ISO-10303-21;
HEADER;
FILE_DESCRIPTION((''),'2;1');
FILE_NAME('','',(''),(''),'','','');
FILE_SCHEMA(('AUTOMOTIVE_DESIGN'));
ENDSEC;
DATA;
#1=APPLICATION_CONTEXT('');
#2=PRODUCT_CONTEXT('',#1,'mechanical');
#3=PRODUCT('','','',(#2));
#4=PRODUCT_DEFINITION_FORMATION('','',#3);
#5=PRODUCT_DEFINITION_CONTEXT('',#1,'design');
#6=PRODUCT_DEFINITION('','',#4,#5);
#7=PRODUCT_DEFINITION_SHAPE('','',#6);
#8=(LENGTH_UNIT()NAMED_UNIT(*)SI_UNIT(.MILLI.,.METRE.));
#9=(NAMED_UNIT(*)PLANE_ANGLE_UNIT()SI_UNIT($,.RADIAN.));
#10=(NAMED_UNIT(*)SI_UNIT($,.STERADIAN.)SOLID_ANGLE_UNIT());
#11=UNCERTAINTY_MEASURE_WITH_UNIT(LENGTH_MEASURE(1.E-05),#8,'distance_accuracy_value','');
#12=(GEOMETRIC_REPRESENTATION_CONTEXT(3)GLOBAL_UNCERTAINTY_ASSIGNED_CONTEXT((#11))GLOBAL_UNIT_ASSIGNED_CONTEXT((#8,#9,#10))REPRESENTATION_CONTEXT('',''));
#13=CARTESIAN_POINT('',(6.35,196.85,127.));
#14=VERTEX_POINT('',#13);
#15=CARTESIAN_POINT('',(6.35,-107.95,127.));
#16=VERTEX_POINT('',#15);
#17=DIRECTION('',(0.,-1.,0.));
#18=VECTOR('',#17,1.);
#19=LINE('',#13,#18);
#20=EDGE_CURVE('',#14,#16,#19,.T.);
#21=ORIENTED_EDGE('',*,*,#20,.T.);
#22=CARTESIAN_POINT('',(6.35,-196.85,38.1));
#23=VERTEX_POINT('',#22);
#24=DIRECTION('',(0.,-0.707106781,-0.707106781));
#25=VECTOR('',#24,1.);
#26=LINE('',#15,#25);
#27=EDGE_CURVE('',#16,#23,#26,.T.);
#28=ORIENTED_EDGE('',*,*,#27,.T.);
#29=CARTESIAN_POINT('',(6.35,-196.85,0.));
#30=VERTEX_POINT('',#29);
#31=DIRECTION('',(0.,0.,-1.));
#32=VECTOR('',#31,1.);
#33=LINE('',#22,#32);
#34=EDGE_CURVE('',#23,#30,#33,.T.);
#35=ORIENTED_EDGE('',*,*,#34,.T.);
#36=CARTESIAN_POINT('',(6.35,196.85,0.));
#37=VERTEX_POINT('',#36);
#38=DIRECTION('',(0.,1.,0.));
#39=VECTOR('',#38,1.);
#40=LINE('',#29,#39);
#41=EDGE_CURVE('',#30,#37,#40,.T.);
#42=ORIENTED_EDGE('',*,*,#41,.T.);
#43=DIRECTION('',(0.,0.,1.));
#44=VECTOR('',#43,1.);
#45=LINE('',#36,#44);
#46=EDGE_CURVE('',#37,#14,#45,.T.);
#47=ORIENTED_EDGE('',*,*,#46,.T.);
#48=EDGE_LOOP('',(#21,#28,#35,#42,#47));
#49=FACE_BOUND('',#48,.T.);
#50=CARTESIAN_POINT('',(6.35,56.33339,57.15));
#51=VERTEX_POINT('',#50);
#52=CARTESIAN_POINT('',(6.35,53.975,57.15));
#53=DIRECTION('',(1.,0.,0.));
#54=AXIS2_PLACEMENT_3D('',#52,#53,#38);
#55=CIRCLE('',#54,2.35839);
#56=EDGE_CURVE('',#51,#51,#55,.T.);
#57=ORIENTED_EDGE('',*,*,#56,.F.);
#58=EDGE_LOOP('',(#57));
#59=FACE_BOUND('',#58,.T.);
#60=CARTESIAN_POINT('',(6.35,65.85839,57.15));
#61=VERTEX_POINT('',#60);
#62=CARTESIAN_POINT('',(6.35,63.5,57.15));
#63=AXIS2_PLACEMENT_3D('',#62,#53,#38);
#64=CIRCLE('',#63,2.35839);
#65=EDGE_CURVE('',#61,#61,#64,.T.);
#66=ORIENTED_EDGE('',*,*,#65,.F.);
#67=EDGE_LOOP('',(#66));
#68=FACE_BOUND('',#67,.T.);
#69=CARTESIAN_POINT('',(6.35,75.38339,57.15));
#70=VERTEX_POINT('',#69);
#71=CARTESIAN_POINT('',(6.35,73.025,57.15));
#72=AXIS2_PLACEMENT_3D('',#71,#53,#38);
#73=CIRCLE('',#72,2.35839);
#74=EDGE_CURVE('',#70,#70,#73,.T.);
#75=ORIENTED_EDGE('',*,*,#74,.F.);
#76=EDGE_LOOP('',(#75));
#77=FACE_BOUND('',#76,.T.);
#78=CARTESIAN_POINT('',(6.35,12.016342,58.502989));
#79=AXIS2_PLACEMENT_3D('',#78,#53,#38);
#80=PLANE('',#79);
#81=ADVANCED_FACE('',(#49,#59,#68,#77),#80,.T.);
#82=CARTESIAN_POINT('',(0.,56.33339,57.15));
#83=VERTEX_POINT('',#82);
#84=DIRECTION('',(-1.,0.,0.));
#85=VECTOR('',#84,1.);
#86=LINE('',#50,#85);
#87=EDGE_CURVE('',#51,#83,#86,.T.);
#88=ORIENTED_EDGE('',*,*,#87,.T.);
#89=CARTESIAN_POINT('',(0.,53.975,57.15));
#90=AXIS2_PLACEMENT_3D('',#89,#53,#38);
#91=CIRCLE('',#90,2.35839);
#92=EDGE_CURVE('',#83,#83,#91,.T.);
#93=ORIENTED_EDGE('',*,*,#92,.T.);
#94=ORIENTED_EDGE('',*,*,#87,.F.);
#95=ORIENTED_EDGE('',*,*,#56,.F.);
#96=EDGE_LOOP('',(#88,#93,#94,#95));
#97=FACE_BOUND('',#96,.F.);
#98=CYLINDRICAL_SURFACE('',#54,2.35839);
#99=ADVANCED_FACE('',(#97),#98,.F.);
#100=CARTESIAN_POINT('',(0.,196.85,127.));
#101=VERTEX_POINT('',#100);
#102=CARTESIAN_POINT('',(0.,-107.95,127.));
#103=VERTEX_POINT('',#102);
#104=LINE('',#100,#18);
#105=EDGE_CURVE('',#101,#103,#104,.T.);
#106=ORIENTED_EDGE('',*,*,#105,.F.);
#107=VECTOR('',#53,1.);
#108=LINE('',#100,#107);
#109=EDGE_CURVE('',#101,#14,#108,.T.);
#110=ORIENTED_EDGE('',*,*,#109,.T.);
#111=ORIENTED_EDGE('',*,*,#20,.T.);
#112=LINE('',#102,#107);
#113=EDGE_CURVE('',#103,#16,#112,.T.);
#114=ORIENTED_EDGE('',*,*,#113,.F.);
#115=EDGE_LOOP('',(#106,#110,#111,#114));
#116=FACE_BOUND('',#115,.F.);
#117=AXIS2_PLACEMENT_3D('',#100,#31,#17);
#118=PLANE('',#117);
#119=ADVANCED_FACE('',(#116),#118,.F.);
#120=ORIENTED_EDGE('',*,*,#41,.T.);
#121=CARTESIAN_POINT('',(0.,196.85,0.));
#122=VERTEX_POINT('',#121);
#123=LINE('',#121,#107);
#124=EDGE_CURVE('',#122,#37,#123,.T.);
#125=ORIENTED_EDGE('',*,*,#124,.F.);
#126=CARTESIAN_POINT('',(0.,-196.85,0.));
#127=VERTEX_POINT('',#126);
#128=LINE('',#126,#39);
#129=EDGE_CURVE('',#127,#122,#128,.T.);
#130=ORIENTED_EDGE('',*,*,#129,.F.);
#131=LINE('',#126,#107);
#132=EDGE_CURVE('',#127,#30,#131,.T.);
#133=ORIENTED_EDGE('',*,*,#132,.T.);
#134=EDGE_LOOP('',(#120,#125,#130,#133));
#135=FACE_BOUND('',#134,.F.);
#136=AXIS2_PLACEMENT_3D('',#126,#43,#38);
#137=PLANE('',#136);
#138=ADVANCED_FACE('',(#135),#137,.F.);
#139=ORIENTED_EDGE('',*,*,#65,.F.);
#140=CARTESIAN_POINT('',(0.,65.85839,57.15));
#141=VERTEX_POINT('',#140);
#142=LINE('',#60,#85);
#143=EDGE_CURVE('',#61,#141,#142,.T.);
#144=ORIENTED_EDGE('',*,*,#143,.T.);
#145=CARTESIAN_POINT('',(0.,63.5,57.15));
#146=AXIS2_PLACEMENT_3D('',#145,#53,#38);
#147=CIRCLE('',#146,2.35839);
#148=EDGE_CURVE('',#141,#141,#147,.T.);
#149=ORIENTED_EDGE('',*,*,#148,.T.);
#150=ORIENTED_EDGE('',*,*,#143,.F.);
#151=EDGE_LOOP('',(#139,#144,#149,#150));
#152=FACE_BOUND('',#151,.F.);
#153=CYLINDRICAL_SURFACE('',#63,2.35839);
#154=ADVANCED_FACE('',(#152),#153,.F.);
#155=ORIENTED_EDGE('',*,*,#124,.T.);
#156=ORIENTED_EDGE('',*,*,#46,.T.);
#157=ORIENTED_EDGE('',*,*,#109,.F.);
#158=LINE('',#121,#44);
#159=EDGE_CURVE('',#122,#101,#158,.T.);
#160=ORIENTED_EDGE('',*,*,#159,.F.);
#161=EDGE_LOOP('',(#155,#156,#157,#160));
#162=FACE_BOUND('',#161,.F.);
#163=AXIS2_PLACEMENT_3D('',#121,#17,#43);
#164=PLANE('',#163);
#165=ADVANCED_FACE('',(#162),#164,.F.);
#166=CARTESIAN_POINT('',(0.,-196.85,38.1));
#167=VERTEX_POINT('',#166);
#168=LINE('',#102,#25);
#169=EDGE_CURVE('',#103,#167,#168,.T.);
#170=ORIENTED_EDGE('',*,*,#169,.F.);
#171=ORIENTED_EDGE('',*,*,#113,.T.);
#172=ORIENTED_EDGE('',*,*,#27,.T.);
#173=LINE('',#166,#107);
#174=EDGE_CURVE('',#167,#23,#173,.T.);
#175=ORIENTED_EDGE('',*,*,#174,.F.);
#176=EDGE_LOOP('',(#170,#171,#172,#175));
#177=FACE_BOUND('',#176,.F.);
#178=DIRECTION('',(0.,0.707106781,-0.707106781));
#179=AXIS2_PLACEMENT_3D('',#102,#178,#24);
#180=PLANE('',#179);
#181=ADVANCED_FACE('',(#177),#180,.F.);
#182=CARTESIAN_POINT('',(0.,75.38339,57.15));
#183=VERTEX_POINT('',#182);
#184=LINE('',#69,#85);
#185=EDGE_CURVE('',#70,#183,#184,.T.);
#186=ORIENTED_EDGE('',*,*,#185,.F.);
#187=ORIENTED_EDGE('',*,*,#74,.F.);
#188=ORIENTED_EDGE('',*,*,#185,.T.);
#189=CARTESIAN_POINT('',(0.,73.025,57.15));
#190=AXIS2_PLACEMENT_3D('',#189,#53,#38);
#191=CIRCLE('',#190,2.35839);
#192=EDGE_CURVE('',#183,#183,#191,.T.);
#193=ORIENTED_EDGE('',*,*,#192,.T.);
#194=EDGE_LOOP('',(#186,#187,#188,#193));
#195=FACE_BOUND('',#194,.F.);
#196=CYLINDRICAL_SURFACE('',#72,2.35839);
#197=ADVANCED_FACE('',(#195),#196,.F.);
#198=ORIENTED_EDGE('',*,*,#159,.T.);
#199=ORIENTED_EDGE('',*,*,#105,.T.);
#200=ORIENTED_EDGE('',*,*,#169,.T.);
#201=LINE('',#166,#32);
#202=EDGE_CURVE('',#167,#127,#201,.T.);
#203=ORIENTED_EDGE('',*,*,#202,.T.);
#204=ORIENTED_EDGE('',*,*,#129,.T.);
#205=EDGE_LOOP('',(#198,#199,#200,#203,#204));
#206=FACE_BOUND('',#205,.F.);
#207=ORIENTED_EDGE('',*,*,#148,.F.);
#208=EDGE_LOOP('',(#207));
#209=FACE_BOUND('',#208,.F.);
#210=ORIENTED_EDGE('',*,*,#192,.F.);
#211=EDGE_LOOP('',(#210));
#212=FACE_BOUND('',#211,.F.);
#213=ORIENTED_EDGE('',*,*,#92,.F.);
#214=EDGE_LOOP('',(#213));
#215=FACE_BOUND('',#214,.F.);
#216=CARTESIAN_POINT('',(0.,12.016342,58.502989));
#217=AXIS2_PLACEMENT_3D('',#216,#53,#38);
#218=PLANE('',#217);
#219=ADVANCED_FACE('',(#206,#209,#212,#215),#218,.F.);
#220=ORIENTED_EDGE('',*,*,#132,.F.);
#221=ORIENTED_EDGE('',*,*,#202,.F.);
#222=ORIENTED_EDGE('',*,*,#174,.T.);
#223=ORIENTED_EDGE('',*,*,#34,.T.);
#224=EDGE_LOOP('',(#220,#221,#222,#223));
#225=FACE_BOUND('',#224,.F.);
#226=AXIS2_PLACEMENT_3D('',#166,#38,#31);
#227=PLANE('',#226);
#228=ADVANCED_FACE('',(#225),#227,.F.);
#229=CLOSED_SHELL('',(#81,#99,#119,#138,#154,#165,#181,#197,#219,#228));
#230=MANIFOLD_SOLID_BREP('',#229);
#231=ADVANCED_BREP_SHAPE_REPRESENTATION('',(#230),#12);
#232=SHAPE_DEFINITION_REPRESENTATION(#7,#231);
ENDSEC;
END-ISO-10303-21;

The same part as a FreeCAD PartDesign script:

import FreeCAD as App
import Part
import Sketcher

V = App.Vector
Q = App.Units.Quantity


def add_polygon(sketch, points):
    """Adds a closed chain of lines whose ends are joined by coincident constraints."""
    first, n = sketch.GeometryCount, len(points)
    for a, b in zip(points, points[1:] + points[:1]):
        sketch.addGeometry(Part.LineSegment(App.Vector(*a, 0), App.Vector(*b, 0)), False)
    for i in range(n):
        sketch.addConstraint(Sketcher.Constraint("Coincident", first + i, 2, first + (i + 1) % n, 1))

doc = App.newDocument("Part")
body = doc.addObject("PartDesign::Body", "Body")

sketch1 = body.newObject("Sketcher::SketchObject", "Sketch")
sketch1.AttachmentSupport = (doc.getObject("YZ_Plane"), [""])
sketch1.MapMode = "FlatFace"
add_polygon(sketch1, [(-197, 38), (-197, 0), (197, 0), (197, 127), (-108, 127)])
sketch1.addConstraint([
    Sketcher.Constraint("Vertical", 0),
    Sketcher.Constraint("Horizontal", 1),
    Sketcher.Constraint("Vertical", 2),
    Sketcher.Constraint("Horizontal", 3),
    Sketcher.Constraint("Symmetric", 0, 2, 1, 2, -1, 1),
    Sketcher.Constraint("DistanceX", 3, 2, 3, 1, Q("12 in")),
    Sketcher.Constraint("DistanceY", 2, 1, 2, 2, Q("5 in")),
    Sketcher.Constraint("DistanceX", 1, 1, 1, 2, Q("15.5 in")),
    Sketcher.Constraint("DistanceY", 0, 2, 0, 1, Q("1.5 in")),
])
pad1 = body.newObject("PartDesign::Pad", "Pad")
pad1.Profile = sketch1
pad1.Length = Q("0.25 in")

sketch2 = body.newObject("Sketcher::SketchObject", "Sketch001")
sketch2.AttachmentSupport = (doc.getObject("YZ_Plane"), [""])
sketch2.MapMode = "FlatFace"
sketch2.AttachmentOffset = App.Placement(V(0, 0, 0.25 * 25.4), App.Rotation())
sketch2.addGeometry([
    Part.Circle(V(54, 57.1, 0), V(0, 0, 1), 2.4),
    Part.Circle(V(63.5, 57.1, 0), V(0, 0, 1), 2.4),
    Part.Circle(V(73, 57.1, 0), V(0, 0, 1), 2.4),
], False)
sketch2.addConstraint([
    Sketcher.Constraint("Equal", 0, 1),
    Sketcher.Constraint("Equal", 1, 2),
    Sketcher.Constraint("Horizontal", 0, 3, 1, 3),
    Sketcher.Constraint("Horizontal", 1, 3, 2, 3),
    Sketcher.Constraint("Diameter", 0, Q("0.1857 in")),
    Sketcher.Constraint("DistanceX", -1, 1, 1, 3, Q("2.5 in")),
    Sketcher.Constraint("DistanceY", -1, 1, 0, 3, Q("2.25 in")),
    Sketcher.Constraint("DistanceX", 0, 3, 2, 3, Q("0.75 in")),
    Sketcher.Constraint("DistanceX", -1, 1, 0, 3, Q("2.125 in")),
])
pocket1 = body.newObject("PartDesign::Pocket", "Pocket")
pocket1.Profile = sketch2
pocket1.Type = "ThroughAll"

doc.recompute()
